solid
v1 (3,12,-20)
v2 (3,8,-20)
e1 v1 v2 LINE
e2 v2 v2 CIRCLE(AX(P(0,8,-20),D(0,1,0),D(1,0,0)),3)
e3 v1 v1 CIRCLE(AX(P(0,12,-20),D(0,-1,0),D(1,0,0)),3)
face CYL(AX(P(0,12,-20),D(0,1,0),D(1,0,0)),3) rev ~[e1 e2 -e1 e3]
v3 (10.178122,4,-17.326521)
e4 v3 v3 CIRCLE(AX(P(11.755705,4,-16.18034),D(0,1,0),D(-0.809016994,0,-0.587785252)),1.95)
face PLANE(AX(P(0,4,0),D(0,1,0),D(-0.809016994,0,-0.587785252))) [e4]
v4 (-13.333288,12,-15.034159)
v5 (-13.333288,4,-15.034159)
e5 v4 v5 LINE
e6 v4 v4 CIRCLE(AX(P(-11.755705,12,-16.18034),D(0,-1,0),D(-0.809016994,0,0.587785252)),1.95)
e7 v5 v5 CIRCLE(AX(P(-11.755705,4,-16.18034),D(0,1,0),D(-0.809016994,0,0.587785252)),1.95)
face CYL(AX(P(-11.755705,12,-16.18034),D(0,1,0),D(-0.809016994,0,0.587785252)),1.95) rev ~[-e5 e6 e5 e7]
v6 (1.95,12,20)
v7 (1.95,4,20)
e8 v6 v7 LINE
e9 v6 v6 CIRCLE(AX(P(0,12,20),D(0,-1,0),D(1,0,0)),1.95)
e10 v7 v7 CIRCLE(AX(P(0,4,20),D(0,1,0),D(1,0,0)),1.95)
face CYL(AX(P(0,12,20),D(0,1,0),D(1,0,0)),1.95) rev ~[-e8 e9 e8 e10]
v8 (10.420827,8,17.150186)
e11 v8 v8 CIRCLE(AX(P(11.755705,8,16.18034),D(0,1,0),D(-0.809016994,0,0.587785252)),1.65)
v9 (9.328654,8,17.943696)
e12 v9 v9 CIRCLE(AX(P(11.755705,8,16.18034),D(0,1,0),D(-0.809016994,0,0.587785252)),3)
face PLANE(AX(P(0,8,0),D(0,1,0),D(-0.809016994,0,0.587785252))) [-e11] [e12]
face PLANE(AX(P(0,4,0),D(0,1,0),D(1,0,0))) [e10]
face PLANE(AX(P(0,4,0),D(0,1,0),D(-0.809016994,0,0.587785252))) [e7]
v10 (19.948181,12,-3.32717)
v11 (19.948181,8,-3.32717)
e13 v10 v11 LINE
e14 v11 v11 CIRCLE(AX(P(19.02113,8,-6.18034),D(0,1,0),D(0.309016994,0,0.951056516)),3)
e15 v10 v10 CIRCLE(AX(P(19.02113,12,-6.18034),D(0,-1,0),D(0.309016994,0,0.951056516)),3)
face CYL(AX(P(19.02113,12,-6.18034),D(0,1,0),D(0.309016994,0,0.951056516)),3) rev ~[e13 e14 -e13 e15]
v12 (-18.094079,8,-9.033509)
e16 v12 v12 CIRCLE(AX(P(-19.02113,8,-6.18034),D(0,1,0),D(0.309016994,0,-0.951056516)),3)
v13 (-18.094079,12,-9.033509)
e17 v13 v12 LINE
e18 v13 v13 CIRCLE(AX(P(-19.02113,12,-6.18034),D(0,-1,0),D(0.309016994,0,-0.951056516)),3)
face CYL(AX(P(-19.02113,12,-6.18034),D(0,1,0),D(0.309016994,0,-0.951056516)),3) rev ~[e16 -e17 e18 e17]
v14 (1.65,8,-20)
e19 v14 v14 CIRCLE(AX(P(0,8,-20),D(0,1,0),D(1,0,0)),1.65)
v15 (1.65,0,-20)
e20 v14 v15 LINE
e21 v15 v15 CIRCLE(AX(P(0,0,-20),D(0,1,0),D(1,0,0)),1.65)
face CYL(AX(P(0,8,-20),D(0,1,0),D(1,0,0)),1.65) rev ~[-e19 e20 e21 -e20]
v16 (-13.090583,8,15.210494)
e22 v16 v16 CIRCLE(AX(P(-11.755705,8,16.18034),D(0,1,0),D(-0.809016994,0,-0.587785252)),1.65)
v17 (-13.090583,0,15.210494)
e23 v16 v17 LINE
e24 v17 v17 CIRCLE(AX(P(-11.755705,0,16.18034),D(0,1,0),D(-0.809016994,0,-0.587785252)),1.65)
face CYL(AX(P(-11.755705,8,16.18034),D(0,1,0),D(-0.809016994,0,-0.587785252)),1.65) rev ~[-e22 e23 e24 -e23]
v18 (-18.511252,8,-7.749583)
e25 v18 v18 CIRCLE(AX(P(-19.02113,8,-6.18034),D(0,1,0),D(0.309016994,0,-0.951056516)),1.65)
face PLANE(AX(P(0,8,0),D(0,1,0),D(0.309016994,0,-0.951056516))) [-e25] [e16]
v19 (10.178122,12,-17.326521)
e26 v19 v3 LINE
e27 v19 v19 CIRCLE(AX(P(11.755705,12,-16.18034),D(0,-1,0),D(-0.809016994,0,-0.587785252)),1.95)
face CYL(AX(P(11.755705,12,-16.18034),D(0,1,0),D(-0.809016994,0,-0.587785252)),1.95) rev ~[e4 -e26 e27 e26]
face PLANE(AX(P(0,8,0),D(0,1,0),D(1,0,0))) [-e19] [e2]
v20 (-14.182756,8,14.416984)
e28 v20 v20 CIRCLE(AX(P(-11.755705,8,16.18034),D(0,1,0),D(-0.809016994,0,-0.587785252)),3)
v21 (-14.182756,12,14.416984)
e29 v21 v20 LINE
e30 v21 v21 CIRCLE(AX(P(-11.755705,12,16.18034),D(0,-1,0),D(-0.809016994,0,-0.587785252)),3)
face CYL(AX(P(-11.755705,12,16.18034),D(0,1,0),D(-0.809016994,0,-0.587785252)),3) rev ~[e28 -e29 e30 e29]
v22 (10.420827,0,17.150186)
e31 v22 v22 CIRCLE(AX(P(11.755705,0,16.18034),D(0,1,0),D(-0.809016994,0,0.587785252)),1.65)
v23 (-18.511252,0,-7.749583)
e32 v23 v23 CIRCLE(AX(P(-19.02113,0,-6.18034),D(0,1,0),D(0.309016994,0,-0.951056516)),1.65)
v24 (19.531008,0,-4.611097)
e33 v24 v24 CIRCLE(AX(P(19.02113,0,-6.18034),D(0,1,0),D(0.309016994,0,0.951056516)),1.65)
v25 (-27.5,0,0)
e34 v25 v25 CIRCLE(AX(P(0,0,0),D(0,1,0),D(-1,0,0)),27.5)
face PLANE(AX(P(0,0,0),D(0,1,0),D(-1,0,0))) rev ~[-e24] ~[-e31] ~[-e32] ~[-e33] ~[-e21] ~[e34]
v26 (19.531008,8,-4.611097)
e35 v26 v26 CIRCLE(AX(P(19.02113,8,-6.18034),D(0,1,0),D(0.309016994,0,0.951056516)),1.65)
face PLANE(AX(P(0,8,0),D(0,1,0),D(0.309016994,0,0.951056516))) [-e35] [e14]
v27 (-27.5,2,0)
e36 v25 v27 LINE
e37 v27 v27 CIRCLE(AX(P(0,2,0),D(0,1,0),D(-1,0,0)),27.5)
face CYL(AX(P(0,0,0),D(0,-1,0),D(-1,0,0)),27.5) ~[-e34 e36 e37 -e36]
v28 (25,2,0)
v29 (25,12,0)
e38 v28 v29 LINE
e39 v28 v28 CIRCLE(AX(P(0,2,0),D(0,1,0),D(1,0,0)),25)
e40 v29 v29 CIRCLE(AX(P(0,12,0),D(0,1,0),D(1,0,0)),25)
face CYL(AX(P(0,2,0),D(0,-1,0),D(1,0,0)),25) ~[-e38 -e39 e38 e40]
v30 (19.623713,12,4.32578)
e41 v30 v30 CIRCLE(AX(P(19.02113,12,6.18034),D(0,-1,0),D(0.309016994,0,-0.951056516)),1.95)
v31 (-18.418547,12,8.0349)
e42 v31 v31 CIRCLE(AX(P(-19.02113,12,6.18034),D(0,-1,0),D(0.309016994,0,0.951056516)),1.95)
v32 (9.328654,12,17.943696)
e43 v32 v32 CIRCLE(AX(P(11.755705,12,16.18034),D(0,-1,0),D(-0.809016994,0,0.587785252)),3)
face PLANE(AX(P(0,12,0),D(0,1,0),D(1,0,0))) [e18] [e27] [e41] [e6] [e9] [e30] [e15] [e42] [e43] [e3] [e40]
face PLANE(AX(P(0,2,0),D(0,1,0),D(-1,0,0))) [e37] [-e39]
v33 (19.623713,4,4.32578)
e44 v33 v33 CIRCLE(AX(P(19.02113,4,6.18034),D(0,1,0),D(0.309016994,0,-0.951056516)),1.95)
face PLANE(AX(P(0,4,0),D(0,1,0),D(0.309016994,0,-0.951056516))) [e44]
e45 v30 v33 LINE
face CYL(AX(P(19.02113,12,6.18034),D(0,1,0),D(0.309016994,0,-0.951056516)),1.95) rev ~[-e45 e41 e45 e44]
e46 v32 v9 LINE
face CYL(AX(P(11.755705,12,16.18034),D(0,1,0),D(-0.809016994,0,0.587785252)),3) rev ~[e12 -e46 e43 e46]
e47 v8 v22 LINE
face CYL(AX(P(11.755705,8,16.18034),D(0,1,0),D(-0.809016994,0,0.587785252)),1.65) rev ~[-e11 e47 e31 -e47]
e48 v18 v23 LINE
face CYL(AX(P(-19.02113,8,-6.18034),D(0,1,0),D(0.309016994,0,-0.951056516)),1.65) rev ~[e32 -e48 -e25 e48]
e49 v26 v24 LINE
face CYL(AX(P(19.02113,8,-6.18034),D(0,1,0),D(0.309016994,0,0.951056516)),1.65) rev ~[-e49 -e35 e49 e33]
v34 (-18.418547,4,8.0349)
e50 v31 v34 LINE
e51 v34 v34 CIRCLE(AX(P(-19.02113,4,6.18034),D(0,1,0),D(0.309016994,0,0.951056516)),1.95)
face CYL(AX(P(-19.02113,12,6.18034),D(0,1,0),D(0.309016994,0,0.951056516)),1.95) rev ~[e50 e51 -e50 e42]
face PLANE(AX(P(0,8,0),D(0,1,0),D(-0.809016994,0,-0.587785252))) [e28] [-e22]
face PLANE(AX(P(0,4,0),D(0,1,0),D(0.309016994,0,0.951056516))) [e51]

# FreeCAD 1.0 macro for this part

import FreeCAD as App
import Part
import Sketcher

V = App.Vector

doc = App.newDocument("Part")
body = doc.addObject("PartDesign::Body", "Body")

# Sketch on XZ plane
sketch1 = doc.addObject("Sketcher::SketchObject", "Sketch")
body.addObject(sketch1)
sketch1.AttachmentSupport = (doc.XZ_Plane, [""])
sketch1.MapMode = "FlatFace"
sketch1.addGeometry(Part.Circle(V(0, 0, 0), V(0, 0, 1), 28), False)
sketch1.addConstraint([
    Sketcher.Constraint("Coincident", 0, 3, -1, 1),
    Sketcher.Constraint("Diameter", 0, 55.0),
])
pad1 = doc.addObject("PartDesign::Pad", "Pad")
body.addObject(pad1)
pad1.Profile = sketch1
pad1.Length = 2
pad1.Reversed = True

# Sketch on XZ plane
sketch2 = doc.addObject("Sketcher::SketchObject", "Sketch001")
body.addObject(sketch2)
sketch2.AttachmentSupport = (doc.XZ_Plane, [""])
sketch2.MapMode = "FlatFace"
sketch2.AttachmentOffset = App.Placement(V(0, 0, -2), App.Rotation())
sketch2.addGeometry(Part.Circle(V(0, 0, 0), V(0, 0, 1), 25), False)
sketch2.addConstraint([
    Sketcher.Constraint("Coincident", 0, 3, -1, 1),
    Sketcher.Constraint("Diameter", 0, 50.0),
])
pad2 = doc.addObject("PartDesign::Pad", "Pad001")
body.addObject(pad2)
pad2.Profile = sketch2
pad2.Length = 10
pad2.Reversed = True

# Sketch on XZ plane
sketch3 = doc.addObject("Sketcher::SketchObject", "Sketch002")
body.addObject(sketch3)
sketch3.AttachmentSupport = (doc.XZ_Plane, [""])
sketch3.MapMode = "FlatFace"
sketch3.AttachmentOffset = App.Placement(V(0, 0, -12), App.Rotation())
sketch3.addGeometry(Part.Circle(V(0, -20, 0), V(0, 0, 1), 3), False)
sketch3.addConstraint([
    Sketcher.Constraint("PointOnObject", 0, 3, -2),
    Sketcher.Constraint("Diameter", 0, 6.0),
    Sketcher.Constraint("DistanceY", 0, 3, -1, 1, 20.0),
])
pocket1 = doc.addObject("PartDesign::Pocket", "Pocket")
body.addObject(pocket1)
pocket1.Profile = sketch3
pocket1.Length = 4
pocket1.Reversed = True

# Sketch on XZ plane
sketch4 = doc.addObject("Sketcher::SketchObject", "Sketch003")
body.addObject(sketch4)
sketch4.AttachmentSupport = (doc.XZ_Plane, [""])
sketch4.MapMode = "FlatFace"
sketch4.AttachmentOffset = App.Placement(V(0, 0, -8), App.Rotation())
sketch4.addGeometry(Part.Circle(V(0, -20, 0), V(0, 0, 1), 1.6), False)
sketch4.addConstraint([
    Sketcher.Constraint("PointOnObject", 0, 3, -2),
    Sketcher.Constraint("Diameter", 0, 3.3),
    Sketcher.Constraint("DistanceY", 0, 3, -1, 1, 20.0),
])
pocket2 = doc.addObject("PartDesign::Pocket", "Pocket001")
body.addObject(pocket2)
pocket2.Profile = sketch4
pocket2.Type = "ThroughAll"
pocket2.Reversed = True
doc.recompute()

polarpattern = doc.addObject("PartDesign::PolarPattern", "PolarPattern")
body.addObject(polarpattern)
polarpattern.Originals = [pocket1, pocket2]
polarpattern.Axis = (doc.Y_Axis, [""])
polarpattern.Angle = 360
polarpattern.Occurrences = 5
body.Tip = polarpattern

# Sketch on XZ plane
sketch5 = doc.addObject("Sketcher::SketchObject", "Sketch004")
body.addObject(sketch5)
sketch5.AttachmentSupport = (doc.XZ_Plane, [""])
sketch5.MapMode = "FlatFace"
sketch5.AttachmentOffset = App.Placement(V(0, 0, -12), App.Rotation())
sketch5.addGeometry(Part.Circle(V(0, 20, 0), V(0, 0, 1), 1.9), False)
sketch5.addConstraint([
    Sketcher.Constraint("PointOnObject", 0, 3, -2),
    Sketcher.Constraint("Diameter", 0, 3.9),
    Sketcher.Constraint("DistanceY", -1, 1, 0, 3, 20.0),
])
pocket3 = doc.addObject("PartDesign::Pocket", "Pocket002")
body.addObject(pocket3)
pocket3.Profile = sketch5
pocket3.Length = 8
pocket3.Reversed = True
doc.recompute()

polarpattern2 = doc.addObject("PartDesign::PolarPattern", "PolarPattern001")
body.addObject(polarpattern2)
polarpattern2.Originals = [pocket3]
polarpattern2.Axis = (doc.Y_Axis, [""])
polarpattern2.Angle = 360
polarpattern2.Occurrences = 5
body.Tip = polarpattern2

doc.recompute()
